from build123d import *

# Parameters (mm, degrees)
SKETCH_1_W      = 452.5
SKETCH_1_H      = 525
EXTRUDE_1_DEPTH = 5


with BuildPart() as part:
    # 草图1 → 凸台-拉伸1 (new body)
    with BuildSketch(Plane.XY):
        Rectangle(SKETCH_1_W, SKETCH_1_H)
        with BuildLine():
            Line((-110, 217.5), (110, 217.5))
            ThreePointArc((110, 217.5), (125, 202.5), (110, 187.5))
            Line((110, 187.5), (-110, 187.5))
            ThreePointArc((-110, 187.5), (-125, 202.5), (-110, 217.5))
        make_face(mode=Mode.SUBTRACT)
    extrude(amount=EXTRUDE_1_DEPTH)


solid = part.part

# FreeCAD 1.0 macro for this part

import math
import FreeCAD as App
import Part
import Sketcher

V = App.Vector


def add_polygon(sketch, points):
    """Adds a closed chain of lines whose ends are joined by coincident constraints."""
    first, n = sketch.GeometryCount, len(points)
    for a, b in zip(points, points[1:] + points[:1]):
        sketch.addGeometry(Part.LineSegment(App.Vector(*a, 0), App.Vector(*b, 0)), False)
    for i in range(n):
        sketch.addConstraint(Sketcher.Constraint("Coincident", first + i, 2, first + (i + 1) % n, 1))

doc = App.newDocument("Part")
params = doc.addObject("Spreadsheet::Sheet", "Params")
for row, (alias, value) in enumerate([
    ("sketch1_radius", "15 mm"),
    ("sketch1_width", "220 mm"),
    ("sketch1_height", "525 mm"),
    ("sketch1_width2", "452.5 mm"),
    ("pad1_length", "5 mm"),
], start=1):
    params.set(f"A{row}", alias)
    params.set(f"B{row}", "=" + value)
    params.setAlias(f"B{row}", alias)

body = doc.addObject("PartDesign::Body", "Body")

# Sketch on XY plane
sketch1 = body.newObject("Sketcher::SketchObject", "Sketch")
sketch1.AttachmentSupport = (doc.getObject("XY_Plane"), [""])
sketch1.MapMode = "FlatFace"
add_polygon(sketch1, [(-226.25, 262.5), (-226.25, -262.5), (226.25, -262.5), (226.25, 262.5)])  # lines 0-3
sketch1.addGeometry(Part.ArcOfCircle(Part.Circle(V(-110, 202.5, 0), V(0, 0, 1), 15), math.radians(90), math.radians(270)), False)  # 4
sketch1.addGeometry(Part.LineSegment(V(-110, 217.5, 0), V(110, 217.5, 0)), False)  # 5
sketch1.addGeometry(Part.ArcOfCircle(Part.Circle(V(110, 202.5, 0), V(0, 0, 1), 15), math.radians(-90), math.radians(90)), False)  # 6
sketch1.addGeometry(Part.LineSegment(V(110, 187.5, 0), V(-110, 187.5, 0)), False)  # 7
sketch1.addConstraint([
    Sketcher.Constraint("Tangent", 4, 1, 5, 1),
    Sketcher.Constraint("Tangent", 5, 2, 6, 2),
    Sketcher.Constraint("Tangent", 6, 1, 7, 1),
    Sketcher.Constraint("Tangent", 7, 2, 4, 2),
    Sketcher.Constraint("Vertical", 0),
    Sketcher.Constraint("Horizontal", 1),
    Sketcher.Constraint("Vertical", 2),
    Sketcher.Constraint("Horizontal", 3),
    Sketcher.Constraint("Horizontal", 5),
    Sketcher.Constraint("Horizontal", 7),
    Sketcher.Constraint("Symmetric", 0, 2, 2, 2, -1, 1),
    Sketcher.Constraint("Radius", 4, 15.0),
    Sketcher.Constraint("DistanceX", 5, 1, 5, 2, 220.0),
    Sketcher.Constraint("DistanceY", 0, 2, 0, 1, 525.0),
    Sketcher.Constraint("DistanceX", 1, 1, 1, 2, 452.5),
    Sketcher.Constraint("DistanceX", 4, 3, -1, 1, 110.0),
    Sketcher.Constraint("DistanceY", 0, 2, 4, 3, 465.0),
])
sketch1.setExpression("Constraints[15]", "Params.sketch1_radius")
sketch1.setExpression("Constraints[16]", "Params.sketch1_width")
sketch1.setExpression("Constraints[17]", "Params.sketch1_height")
sketch1.setExpression("Constraints[18]", "Params.sketch1_width2")
pad1 = body.newObject("PartDesign::Pad", "Pad")
pad1.Profile = sketch1
pad1.setExpression("Length", "Params.pad1_length")

doc.recompute()
